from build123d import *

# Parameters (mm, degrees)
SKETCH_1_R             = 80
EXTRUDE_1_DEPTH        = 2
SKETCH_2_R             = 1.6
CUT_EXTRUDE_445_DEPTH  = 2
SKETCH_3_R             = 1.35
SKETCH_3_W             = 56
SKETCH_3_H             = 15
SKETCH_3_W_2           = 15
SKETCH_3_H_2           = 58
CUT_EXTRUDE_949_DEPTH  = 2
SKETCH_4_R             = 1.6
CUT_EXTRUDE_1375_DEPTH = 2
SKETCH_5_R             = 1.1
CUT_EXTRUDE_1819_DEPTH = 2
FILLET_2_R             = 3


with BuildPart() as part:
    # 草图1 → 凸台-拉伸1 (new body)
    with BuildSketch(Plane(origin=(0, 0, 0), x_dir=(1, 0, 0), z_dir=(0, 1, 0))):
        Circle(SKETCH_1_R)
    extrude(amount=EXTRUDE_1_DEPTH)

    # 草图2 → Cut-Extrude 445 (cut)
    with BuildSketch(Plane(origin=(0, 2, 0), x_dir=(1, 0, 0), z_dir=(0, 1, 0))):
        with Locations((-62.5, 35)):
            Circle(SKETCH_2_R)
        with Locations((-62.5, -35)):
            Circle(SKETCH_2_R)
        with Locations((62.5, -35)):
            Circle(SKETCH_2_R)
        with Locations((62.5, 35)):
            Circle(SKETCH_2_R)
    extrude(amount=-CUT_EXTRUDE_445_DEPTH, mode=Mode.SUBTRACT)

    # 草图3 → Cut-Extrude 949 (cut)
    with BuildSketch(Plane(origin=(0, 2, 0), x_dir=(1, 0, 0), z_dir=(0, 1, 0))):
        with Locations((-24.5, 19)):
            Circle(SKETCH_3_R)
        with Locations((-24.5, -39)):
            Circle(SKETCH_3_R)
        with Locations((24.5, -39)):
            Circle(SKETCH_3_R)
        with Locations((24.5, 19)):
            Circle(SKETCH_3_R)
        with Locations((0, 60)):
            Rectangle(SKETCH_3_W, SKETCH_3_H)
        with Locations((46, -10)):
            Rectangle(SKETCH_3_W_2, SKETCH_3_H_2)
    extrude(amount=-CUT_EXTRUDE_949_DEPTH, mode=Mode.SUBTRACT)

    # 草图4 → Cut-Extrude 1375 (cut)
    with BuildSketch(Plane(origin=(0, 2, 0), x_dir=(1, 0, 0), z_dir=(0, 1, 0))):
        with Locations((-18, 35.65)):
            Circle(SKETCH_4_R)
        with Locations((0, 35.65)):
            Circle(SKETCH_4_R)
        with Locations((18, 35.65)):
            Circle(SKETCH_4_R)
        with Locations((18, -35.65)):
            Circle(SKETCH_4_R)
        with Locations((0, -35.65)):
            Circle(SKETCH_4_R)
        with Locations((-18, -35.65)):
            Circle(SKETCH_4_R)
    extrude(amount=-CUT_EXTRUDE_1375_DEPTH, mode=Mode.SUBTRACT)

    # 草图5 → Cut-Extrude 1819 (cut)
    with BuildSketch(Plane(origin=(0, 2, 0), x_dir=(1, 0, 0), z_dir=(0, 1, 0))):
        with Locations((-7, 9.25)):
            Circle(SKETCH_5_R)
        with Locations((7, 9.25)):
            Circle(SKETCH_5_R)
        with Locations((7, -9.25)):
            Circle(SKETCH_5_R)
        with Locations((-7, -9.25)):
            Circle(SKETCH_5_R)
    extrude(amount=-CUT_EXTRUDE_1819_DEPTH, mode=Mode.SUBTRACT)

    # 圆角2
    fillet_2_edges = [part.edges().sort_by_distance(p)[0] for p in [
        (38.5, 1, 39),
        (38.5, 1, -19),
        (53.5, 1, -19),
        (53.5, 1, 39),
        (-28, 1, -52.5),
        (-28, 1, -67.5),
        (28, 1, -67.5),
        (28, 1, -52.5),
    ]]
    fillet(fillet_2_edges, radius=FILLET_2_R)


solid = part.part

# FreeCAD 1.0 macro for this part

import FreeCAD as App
import Part
import Sketcher


def edges_at(feature, points):
    """Names of the edges that pass closest to the given points."""
    edges = feature.Shape.Edges
    near = lambda p: min(range(len(edges)), key=lambda i: edges[i].distToShape(Part.Vertex(*p))[0])
    return sorted({f"Edge{near(p) + 1}" for p in points})

doc = App.newDocument("Part")
body = doc.addObject("PartDesign::Body", "Body")

# Sketch on XZ plane
sketch1 = doc.addObject("Sketcher::SketchObject", "Sketch")
body.addObject(sketch1)
sketch1.AttachmentSupport = (doc.XZ_Plane, [""])
sketch1.MapMode = "FlatFace"
sketch1.addGeometry(Part.Circle(App.Vector(0, 0, 0), App.Vector(0, 0, 1), 80), False)
sketch1.addConstraint([
    Sketcher.Constraint("Coincident", 0, 3, -1, 1),
    Sketcher.Constraint("Diameter", 0, 160.0),
])
pad1 = doc.addObject("PartDesign::Pad", "Pad")
body.addObject(pad1)
pad1.Profile = sketch1
pad1.Length = 2
pad1.Reversed = True

# Sketch on XZ plane
sketch2 = doc.addObject("Sketcher::SketchObject", "Sketch001")
body.addObject(sketch2)
sketch2.AttachmentSupport = (doc.XZ_Plane, [""])
sketch2.MapMode = "FlatFace"
sketch2.AttachmentOffset = App.Placement(App.Vector(0, 0, -2), App.Rotation())
sketch2.addGeometry([
    Part.Circle(App.Vector(-62.5, -35, 0), App.Vector(0, 0, 1), 1.6),
    Part.Circle(App.Vector(-62.5, 35, 0), App.Vector(0, 0, 1), 1.6),
    Part.Circle(App.Vector(62.5, 35, 0), App.Vector(0, 0, 1), 1.6),
    Part.Circle(App.Vector(62.5, -35, 0), App.Vector(0, 0, 1), 1.6),
], False)
sketch2.addConstraint([
    Sketcher.Constraint("Equal", 0, 1),
    Sketcher.Constraint("Equal", 1, 2),
    Sketcher.Constraint("Equal", 2, 3),
    Sketcher.Constraint("Symmetric", 0, 3, 2, 3, -1, 1),
    Sketcher.Constraint("Symmetric", 1, 3, 3, 3, -1, 1),
    Sketcher.Constraint("Symmetric", 1, 3, 2, 3, -2),
    Sketcher.Constraint("Diameter", 0, 3.2),
    Sketcher.Constraint("DistanceY", 0, 3, -1, 1, 35.0),
    Sketcher.Constraint("DistanceX", 1, 3, 2, 3, 125.0),
])
pocket1 = doc.addObject("PartDesign::Pocket", "Pocket")
body.addObject(pocket1)
pocket1.Profile = sketch2
pocket1.Length = 2
pocket1.Reversed = True

# Sketch on XZ plane
sketch3 = doc.addObject("Sketcher::SketchObject", "Sketch002")
body.addObject(sketch3)
sketch3.AttachmentSupport = (doc.XZ_Plane, [""])
sketch3.MapMode = "FlatFace"
sketch3.AttachmentOffset = App.Placement(App.Vector(0, 0, -2), App.Rotation())
sketch3.addGeometry([
    Part.Circle(App.Vector(-24.5, -19, 0), App.Vector(0, 0, 1), 1.4),  # 0
    Part.Circle(App.Vector(-24.5, 39, 0), App.Vector(0, 0, 1), 1.4),  # 1
    Part.Circle(App.Vector(24.5, 39, 0), App.Vector(0, 0, 1), 1.4),  # 2
    Part.Circle(App.Vector(24.5, -19, 0), App.Vector(0, 0, 1), 1.4),  # 3
    Part.LineSegment(App.Vector(-28, -67.5, 0), App.Vector(-28, -52.5, 0)),  # 4
    Part.LineSegment(App.Vector(-28, -52.5, 0), App.Vector(28, -52.5, 0)),  # 5
    Part.LineSegment(App.Vector(28, -52.5, 0), App.Vector(28, -67.5, 0)),  # 6
    Part.LineSegment(App.Vector(28, -67.5, 0), App.Vector(-28, -67.5, 0)),  # 7
    Part.LineSegment(App.Vector(38.5, -19, 0), App.Vector(38.5, 39, 0)),  # 8
    Part.LineSegment(App.Vector(38.5, 39, 0), App.Vector(53.5, 39, 0)),  # 9
    Part.LineSegment(App.Vector(53.5, 39, 0), App.Vector(53.5, -19, 0)),  # 10
    Part.LineSegment(App.Vector(53.5, -19, 0), App.Vector(38.5, -19, 0)),  # 11
], False)
sketch3.addConstraint([
    Sketcher.Constraint("Coincident", 4, 2, 5, 1),
    Sketcher.Constraint("Coincident", 5, 2, 6, 1),
    Sketcher.Constraint("Coincident", 6, 2, 7, 1),
    Sketcher.Constraint("Coincident", 7, 2, 4, 1),
    Sketcher.Constraint("Coincident", 8, 2, 9, 1),
    Sketcher.Constraint("Coincident", 9, 2, 10, 1),
    Sketcher.Constraint("Coincident", 10, 2, 11, 1),
    Sketcher.Constraint("Coincident", 11, 2, 8, 1),
    Sketcher.Constraint("Vertical", 4),
    Sketcher.Constraint("Horizontal", 5),
    Sketcher.Constraint("Vertical", 6),
    Sketcher.Constraint("Horizontal", 7),
    Sketcher.Constraint("Vertical", 8),
    Sketcher.Constraint("Horizontal", 9),
    Sketcher.Constraint("Vertical", 10),
    Sketcher.Constraint("Horizontal", 11),
    Sketcher.Constraint("Equal", 0, 1),
    Sketcher.Constraint("Equal", 1, 2),
    Sketcher.Constraint("Equal", 2, 3),
    Sketcher.Constraint("Symmetric", 1, 3, 2, 3, -2),
    Sketcher.Constraint("Symmetric", 0, 3, 3, 3, -2),
    Sketcher.Constraint("Horizontal", 2, 3, 8, 2),
    Sketcher.Constraint("Horizontal", 3, 3, 10, 2),
    Sketcher.Constraint("Vertical", 0, 3, 1, 3),
    Sketcher.Constraint("Equal", 11, 4),
    Sketcher.Constraint("Diameter", 0, 2.7),
    Sketcher.Constraint("DistanceX", 5, 1, 5, 2, 56.0),
    Sketcher.Constraint("DistanceX", 9, 1, 9, 2, 15.0),
    Sketcher.Constraint("DistanceY", 8, 1, 8, 2, 58.0),
    Sketcher.Constraint("DistanceY", 0, 3, -1, 1, 19.0),
    Sketcher.Constraint("DistanceX", 4, 2, -1, 1, 28.0),
    Sketcher.Constraint("DistanceX", 1, 3, 2, 3, 49.0),
    Sketcher.Constraint("DistanceX", 2, 3, 8, 2, 14.0),
    Sketcher.Constraint("DistanceY", 4, 2, -1, 1, 52.5),
])
pocket2 = doc.addObject("PartDesign::Pocket", "Pocket001")
body.addObject(pocket2)
pocket2.Profile = sketch3
pocket2.Length = 2
pocket2.Reversed = True

# Sketch on XZ plane
sketch4 = doc.addObject("Sketcher::SketchObject", "Sketch003")
body.addObject(sketch4)
sketch4.AttachmentSupport = (doc.XZ_Plane, [""])
sketch4.MapMode = "FlatFace"
sketch4.AttachmentOffset = App.Placement(App.Vector(0, 0, -2), App.Rotation())
sketch4.addGeometry([
    Part.Circle(App.Vector(-18, -35.6, 0), App.Vector(0, 0, 1), 1.6),  # 0
    Part.Circle(App.Vector(0, -35.6, 0), App.Vector(0, 0, 1), 1.6),  # 1
    Part.Circle(App.Vector(18, -35.6, 0), App.Vector(0, 0, 1), 1.6),  # 2
    Part.Circle(App.Vector(18, 35.6, 0), App.Vector(0, 0, 1), 1.6),  # 3
    Part.Circle(App.Vector(0, 35.6, 0), App.Vector(0, 0, 1), 1.6),  # 4
    Part.Circle(App.Vector(-18, 35.6, 0), App.Vector(0, 0, 1), 1.6),  # 5
], False)
sketch4.addConstraint([
    Sketcher.Constraint("Equal", 0, 1),
    Sketcher.Constraint("Equal", 1, 2),
    Sketcher.Constraint("Equal", 2, 3),
    Sketcher.Constraint("Equal", 3, 4),
    Sketcher.Constraint("Equal", 4, 5),
    Sketcher.Constraint("Symmetric", 0, 3, 3, 3, -1, 1),
    Sketcher.Constraint("Symmetric", 1, 3, 4, 3, -1, 1),
    Sketcher.Constraint("Symmetric", 2, 3, 5, 3, -1, 1),
    Sketcher.Constraint("Symmetric", 0, 3, 2, 3, -2),
    Sketcher.Constraint("PointOnObject", 1, 3, -2),
    Sketcher.Constraint("Horizontal", 0, 3, 1, 3),
    Sketcher.Constraint("Diameter", 0, 3.2),
    Sketcher.Constraint("DistanceX", 0, 3, -1, 1, 18.0),
    Sketcher.Constraint("DistanceY", 2, 3, 3, 3, 71.3),
])
pocket3 = doc.addObject("PartDesign::Pocket", "Pocket002")
body.addObject(pocket3)
pocket3.Profile = sketch4
pocket3.Length = 2
pocket3.Reversed = True

# Sketch on XZ plane
sketch5 = doc.addObject("Sketcher::SketchObject", "Sketch004")
body.addObject(sketch5)
sketch5.AttachmentSupport = (doc.XZ_Plane, [""])
sketch5.MapMode = "FlatFace"
sketch5.AttachmentOffset = App.Placement(App.Vector(0, 0, -2), App.Rotation())
sketch5.addGeometry([
    Part.Circle(App.Vector(-7, -9.2, 0), App.Vector(0, 0, 1), 1.1),
    Part.Circle(App.Vector(7, -9.2, 0), App.Vector(0, 0, 1), 1.1),
    Part.Circle(App.Vector(7, 9.2, 0), App.Vector(0, 0, 1), 1.1),
    Part.Circle(App.Vector(-7, 9.2, 0), App.Vector(0, 0, 1), 1.1),
], False)
sketch5.addConstraint([
    Sketcher.Constraint("Equal", 0, 1),
    Sketcher.Constraint("Equal", 1, 2),
    Sketcher.Constraint("Equal", 2, 3),
    Sketcher.Constraint("Symmetric", 0, 3, 2, 3, -1, 1),
    Sketcher.Constraint("Symmetric", 1, 3, 3, 3, -1, 1),
    Sketcher.Constraint("Symmetric", 0, 3, 1, 3, -2),
    Sketcher.Constraint("Diameter", 0, 2.2),
    Sketcher.Constraint("DistanceX", 0, 3, -1, 1, 7.0),
    Sketcher.Constraint("DistanceY", 1, 3, 2, 3, 18.5),
])
pocket4 = doc.addObject("PartDesign::Pocket", "Pocket003")
body.addObject(pocket4)
pocket4.Profile = sketch5
pocket4.Length = 2
pocket4.Reversed = True
doc.recompute()

fillet = doc.addObject("PartDesign::Fillet", "Fillet")
body.addObject(fillet)
fillet.Base = (pocket4, edges_at(pocket4, [
    (38.5, 1, 39),
    (38.5, 1, -19),
    (53.5, 1, -19),
    (53.5, 1, 39),
    (-28, 1, -52.5),
    (-28, 1, -67.5),
    (28, 1, -67.5),
    (28, 1, -52.5),
]))
fillet.Radius = 3

doc.recompute()
